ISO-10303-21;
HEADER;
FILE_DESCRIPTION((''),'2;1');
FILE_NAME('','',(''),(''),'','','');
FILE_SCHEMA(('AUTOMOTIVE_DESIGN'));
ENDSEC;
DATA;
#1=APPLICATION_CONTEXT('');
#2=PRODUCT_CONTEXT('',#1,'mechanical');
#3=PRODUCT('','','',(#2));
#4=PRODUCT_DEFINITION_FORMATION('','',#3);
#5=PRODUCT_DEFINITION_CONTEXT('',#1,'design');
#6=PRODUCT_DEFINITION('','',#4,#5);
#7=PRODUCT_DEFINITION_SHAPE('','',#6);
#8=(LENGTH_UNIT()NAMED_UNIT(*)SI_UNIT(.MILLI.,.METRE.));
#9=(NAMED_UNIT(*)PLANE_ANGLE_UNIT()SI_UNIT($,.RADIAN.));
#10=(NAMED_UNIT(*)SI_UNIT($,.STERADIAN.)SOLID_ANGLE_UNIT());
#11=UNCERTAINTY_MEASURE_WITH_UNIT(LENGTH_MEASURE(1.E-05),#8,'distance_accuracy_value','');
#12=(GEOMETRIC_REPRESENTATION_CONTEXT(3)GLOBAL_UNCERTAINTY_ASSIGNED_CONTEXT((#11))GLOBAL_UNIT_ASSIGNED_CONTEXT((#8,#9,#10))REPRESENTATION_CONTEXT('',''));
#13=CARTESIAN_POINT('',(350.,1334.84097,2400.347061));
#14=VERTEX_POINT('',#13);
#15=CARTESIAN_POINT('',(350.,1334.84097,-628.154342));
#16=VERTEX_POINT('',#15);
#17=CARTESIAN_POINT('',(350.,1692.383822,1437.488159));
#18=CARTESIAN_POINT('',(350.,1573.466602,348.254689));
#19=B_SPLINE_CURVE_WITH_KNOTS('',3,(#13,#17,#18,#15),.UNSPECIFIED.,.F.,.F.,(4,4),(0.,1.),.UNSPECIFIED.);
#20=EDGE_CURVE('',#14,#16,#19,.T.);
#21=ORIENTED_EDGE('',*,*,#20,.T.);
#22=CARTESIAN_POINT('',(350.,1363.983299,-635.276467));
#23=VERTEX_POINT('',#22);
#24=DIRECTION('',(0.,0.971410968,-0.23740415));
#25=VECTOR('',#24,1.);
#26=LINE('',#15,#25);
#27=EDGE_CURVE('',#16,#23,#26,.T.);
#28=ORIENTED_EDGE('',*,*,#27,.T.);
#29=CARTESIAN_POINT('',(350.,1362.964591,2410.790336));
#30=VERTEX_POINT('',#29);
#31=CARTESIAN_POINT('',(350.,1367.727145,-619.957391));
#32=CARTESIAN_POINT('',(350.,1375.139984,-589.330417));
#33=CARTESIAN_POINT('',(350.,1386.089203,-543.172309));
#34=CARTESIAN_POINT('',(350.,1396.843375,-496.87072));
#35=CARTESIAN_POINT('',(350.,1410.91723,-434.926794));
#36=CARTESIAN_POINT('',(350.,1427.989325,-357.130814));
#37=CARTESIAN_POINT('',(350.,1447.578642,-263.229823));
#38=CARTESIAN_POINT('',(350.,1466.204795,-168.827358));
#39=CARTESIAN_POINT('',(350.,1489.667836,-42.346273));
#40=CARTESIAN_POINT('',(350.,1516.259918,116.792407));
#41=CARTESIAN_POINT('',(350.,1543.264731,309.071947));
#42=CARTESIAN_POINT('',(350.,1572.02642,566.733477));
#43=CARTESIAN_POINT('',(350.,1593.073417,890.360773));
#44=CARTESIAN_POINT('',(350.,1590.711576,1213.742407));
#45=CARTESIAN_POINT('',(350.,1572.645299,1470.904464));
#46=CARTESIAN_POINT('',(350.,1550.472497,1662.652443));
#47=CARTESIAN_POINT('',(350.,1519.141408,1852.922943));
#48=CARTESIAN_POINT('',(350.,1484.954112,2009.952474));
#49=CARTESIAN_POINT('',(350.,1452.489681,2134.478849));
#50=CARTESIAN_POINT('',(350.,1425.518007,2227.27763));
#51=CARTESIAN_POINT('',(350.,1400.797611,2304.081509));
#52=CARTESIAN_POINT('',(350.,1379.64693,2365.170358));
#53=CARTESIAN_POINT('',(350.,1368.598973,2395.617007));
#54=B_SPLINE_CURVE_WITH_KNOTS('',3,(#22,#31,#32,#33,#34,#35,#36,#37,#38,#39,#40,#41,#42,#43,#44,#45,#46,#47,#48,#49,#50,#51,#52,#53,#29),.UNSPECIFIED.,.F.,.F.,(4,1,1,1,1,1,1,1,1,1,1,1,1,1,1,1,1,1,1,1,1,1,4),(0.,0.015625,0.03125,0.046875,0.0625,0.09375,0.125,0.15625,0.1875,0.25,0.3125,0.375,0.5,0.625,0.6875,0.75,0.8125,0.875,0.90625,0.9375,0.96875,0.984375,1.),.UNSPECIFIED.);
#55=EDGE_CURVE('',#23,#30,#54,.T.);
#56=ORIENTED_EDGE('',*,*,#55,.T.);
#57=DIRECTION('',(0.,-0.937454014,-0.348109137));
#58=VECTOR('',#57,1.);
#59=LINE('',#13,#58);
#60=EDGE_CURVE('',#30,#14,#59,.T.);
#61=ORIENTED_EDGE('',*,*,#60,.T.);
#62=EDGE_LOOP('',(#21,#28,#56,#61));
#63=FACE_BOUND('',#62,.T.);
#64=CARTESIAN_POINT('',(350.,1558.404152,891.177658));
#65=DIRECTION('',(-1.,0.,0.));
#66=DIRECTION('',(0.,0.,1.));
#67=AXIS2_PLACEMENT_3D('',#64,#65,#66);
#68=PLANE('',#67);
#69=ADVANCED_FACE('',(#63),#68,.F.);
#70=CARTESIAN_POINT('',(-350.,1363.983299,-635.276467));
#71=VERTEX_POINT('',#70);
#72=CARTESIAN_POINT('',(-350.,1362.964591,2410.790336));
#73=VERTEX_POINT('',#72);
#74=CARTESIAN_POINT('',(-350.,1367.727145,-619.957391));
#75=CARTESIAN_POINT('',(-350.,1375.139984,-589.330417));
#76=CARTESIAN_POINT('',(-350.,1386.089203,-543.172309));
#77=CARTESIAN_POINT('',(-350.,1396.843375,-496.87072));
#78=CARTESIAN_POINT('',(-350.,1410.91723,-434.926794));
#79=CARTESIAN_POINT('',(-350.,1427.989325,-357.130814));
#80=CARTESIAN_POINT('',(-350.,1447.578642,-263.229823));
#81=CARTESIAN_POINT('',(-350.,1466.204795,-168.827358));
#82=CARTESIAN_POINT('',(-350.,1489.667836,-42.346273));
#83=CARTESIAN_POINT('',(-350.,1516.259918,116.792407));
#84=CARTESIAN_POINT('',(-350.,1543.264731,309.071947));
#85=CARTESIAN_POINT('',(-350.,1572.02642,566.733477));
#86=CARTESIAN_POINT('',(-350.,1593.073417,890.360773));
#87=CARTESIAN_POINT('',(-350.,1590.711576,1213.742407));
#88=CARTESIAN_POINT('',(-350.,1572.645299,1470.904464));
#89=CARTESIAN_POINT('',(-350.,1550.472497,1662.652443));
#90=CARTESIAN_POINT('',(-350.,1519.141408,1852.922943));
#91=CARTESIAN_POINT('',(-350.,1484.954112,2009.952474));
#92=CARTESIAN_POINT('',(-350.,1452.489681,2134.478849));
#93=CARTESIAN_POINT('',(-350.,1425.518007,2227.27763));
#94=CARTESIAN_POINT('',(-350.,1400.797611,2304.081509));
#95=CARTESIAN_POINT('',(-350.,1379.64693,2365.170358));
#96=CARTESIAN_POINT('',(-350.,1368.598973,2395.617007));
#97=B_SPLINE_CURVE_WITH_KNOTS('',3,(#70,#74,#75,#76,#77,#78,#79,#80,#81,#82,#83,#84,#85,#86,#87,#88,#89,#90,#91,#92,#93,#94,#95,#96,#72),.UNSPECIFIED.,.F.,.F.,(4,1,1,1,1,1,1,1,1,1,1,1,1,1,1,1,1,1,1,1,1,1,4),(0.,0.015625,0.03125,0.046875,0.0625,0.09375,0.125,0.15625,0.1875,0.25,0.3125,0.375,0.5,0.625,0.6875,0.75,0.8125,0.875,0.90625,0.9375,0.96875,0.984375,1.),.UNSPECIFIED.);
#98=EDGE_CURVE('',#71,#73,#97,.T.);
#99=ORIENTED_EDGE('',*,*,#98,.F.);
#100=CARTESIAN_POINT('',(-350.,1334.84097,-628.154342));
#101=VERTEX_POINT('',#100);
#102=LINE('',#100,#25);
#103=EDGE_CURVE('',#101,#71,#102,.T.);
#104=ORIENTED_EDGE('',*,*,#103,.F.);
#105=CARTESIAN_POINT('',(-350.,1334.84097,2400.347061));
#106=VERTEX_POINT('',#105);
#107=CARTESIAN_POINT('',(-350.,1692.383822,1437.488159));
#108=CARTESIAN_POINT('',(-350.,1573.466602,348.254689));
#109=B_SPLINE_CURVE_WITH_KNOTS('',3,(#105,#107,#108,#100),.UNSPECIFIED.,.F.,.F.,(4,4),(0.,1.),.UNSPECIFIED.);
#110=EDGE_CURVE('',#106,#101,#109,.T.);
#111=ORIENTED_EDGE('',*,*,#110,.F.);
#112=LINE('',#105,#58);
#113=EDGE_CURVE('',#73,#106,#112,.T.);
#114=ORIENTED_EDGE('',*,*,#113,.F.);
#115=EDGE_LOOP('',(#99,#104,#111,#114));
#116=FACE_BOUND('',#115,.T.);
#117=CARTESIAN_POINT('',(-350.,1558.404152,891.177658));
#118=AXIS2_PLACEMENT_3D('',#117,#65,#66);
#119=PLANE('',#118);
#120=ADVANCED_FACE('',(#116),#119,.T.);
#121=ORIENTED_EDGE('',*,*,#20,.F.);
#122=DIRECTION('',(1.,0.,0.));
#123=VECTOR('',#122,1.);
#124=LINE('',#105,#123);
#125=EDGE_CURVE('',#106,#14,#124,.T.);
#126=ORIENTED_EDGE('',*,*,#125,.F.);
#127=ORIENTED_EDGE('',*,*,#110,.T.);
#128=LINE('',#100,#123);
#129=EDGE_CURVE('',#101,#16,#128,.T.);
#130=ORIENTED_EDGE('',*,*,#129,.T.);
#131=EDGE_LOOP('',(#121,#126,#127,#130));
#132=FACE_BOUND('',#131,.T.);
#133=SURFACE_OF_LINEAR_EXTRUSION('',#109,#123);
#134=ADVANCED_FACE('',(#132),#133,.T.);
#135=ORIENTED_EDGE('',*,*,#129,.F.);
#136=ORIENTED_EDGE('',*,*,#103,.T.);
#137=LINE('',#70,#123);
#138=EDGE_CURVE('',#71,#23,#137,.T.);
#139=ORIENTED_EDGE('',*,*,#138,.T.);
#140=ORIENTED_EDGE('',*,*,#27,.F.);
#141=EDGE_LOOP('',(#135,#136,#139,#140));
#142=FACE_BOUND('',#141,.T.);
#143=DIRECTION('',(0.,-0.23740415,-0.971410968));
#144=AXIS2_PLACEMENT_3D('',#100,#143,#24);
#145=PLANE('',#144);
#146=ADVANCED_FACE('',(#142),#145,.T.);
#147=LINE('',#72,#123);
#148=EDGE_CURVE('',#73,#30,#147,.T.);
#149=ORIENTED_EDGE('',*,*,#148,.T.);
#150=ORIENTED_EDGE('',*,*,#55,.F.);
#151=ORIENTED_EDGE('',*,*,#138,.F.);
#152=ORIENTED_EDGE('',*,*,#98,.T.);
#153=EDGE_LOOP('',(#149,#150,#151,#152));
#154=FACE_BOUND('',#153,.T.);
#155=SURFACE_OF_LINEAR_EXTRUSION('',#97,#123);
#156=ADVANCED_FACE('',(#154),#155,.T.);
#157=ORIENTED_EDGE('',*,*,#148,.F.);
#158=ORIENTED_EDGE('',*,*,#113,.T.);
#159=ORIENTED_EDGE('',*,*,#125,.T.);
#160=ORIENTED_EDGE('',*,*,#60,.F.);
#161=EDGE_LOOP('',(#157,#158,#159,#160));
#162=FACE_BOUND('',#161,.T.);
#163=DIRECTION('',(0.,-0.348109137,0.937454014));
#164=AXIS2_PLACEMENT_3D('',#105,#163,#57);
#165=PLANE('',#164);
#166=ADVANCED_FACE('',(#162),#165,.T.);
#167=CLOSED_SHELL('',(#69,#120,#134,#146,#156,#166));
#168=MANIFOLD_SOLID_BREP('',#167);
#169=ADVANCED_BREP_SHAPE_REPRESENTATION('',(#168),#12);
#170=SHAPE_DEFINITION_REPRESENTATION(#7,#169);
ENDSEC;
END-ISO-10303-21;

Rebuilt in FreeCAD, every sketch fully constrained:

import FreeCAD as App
import Part
import Sketcher
from FreeCAD import Vector

doc = App.newDocument("Part")
params = doc.addObject("Spreadsheet::Sheet", "Params")
for row, (alias, value) in enumerate([
    ("pad1_length", "350 mm"),
    ("pad1_length2", "350 mm"),
], start=1):
    params.set(f"A{row}", alias)
    params.set(f"B{row}", "=" + value)
    params.setAlias(f"B{row}", alias)

body = doc.addObject("PartDesign::Body", "Body")

# Sketch on YZ plane
sketch1 = body.newObject("Sketcher::SketchObject", "Sketch")
sketch1.AttachmentSupport = (doc.getObject("YZ_Plane"), [""])
sketch1.MapMode = "FlatFace"
sketch1.addGeometry([
    Part.LineSegment(Vector(1334.84097, -628.154342, 0), Vector(1363.983299, -635.276467, 0)),
    Part.BSplineCurve([Vector(1363.983299, -635.276467, 0), Vector(1367.727145, -619.957391, 0), Vector(1375.139984, -589.330417, 0), Vector(1386.089203, -543.172309, 0), Vector(1396.843375, -496.87072, 0), Vector(1410.91723, -434.926794, 0), Vector(1427.989325, -357.130814, 0), Vector(1447.578642, -263.229823, 0), Vector(1466.204795, -168.827358, 0), Vector(1489.667836, -42.346273, 0), Vector(1516.259918, 116.792407, 0), Vector(1543.264731, 309.071947, 0), Vector(1572.02642, 566.733477, 0), Vector(1593.073417, 890.360773, 0), Vector(1590.711576, 1213.742407, 0), Vector(1572.645299, 1470.904464, 0), Vector(1550.472497, 1662.652443, 0), Vector(1519.141408, 1852.922943, 0), Vector(1484.954112, 2009.952474, 0), Vector(1452.489681, 2134.478849, 0), Vector(1425.518007, 2227.27763, 0), Vector(1400.797611, 2304.081509, 0), Vector(1379.64693, 2365.170358, 0), Vector(1368.598973, 2395.617007, 0), Vector(1362.964591, 2410.790336, 0)], [4, 1, 1, 1, 1, 1, 1, 1, 1, 1, 1, 1, 1, 1, 1, 1, 1, 1, 1, 1, 1, 1, 4], [0, 0.015625, 0.03125, 0.046875, 0.0625, 0.09375, 0.125, 0.15625, 0.1875, 0.25, 0.3125, 0.375, 0.5, 0.625, 0.6875, 0.75, 0.8125, 0.875, 0.90625, 0.9375, 0.96875, 0.984375, 1], False, 3, [1, 1, 1, 1, 1, 1, 1, 1, 1, 1, 1, 1, 1, 1, 1, 1, 1, 1, 1, 1, 1, 1, 1, 1, 1], False),
    Part.LineSegment(Vector(1362.964591, 2410.790336, 0), Vector(1334.84097, 2400.347061, 0)),
    Part.BSplineCurve([Vector(1334.84097, -628.154342, 0), Vector(1573.466602, 348.254689, 0), Vector(1692.383822, 1437.488159, 0), Vector(1334.84097, 2400.347061, 0)], [4, 4], [0, 1], False, 3, [1, 1, 1, 1], False),
], False)
sketch1.addConstraint([
    Sketcher.Constraint("Block", 1),
    Sketcher.Constraint("Block", 3),
    Sketcher.Constraint("Coincident", 0, 2, 1, 1),
    Sketcher.Constraint("Coincident", 1, 2, 2, 1),
    Sketcher.Constraint("Coincident", 2, 2, 3, 2),
    Sketcher.Constraint("Coincident", 3, 1, 0, 1),
])
pad1 = body.newObject("PartDesign::Pad", "Pad")
pad1.Profile = sketch1
pad1.Type = "TwoLengths"
pad1.setExpression("Length", "Params.pad1_length")
pad1.setExpression("Length2", "Params.pad1_length2")

doc.recompute()
